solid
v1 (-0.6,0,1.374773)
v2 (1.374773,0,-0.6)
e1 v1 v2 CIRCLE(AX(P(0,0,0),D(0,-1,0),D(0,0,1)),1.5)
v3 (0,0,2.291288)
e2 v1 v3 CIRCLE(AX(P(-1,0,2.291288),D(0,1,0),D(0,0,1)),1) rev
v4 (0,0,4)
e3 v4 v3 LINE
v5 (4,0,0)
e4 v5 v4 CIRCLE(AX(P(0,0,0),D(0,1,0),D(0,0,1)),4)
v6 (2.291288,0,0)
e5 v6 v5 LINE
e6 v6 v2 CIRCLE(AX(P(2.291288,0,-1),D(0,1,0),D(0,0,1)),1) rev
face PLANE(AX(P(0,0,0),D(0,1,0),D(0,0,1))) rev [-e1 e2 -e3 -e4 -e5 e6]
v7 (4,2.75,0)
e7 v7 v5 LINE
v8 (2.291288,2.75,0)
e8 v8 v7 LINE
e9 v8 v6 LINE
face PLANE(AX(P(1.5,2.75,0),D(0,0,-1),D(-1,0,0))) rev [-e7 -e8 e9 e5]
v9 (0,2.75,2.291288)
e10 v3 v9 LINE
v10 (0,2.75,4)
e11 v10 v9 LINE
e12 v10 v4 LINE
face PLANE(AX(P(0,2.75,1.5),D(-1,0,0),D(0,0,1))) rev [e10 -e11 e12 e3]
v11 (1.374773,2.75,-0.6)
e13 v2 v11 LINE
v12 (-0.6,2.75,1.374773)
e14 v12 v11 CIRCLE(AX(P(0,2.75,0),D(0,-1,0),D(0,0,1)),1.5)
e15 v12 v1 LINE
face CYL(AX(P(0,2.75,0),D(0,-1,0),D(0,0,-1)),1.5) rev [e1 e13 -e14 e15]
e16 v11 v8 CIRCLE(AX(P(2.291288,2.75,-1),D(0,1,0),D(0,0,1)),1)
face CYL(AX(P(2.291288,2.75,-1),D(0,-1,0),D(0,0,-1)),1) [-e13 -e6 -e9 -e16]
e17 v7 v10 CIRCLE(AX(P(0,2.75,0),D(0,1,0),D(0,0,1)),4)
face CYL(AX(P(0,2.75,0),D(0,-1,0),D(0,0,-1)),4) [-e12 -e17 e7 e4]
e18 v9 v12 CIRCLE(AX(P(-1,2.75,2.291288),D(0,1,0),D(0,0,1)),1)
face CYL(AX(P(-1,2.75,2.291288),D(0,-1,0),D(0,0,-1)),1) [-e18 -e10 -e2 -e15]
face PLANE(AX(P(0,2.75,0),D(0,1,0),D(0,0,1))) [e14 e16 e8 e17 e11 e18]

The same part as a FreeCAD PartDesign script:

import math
import FreeCAD as App
import Part
import Sketcher
from FreeCAD import Vector


def edges_at(feature, points):
    """Names of the edges that pass closest to the given points."""
    edges = feature.Shape.Edges
    near = lambda p: min(range(len(edges)), key=lambda i: edges[i].distToShape(Part.Vertex(*p))[0])
    return sorted({f"Edge{near(p) + 1}" for p in points})

doc = App.newDocument("Part")
body = doc.addObject("PartDesign::Body", "Body")

# Sketch on XZ plane
sketch1 = doc.addObject("Sketcher::SketchObject", "Sketch")
body.addObject(sketch1)
sketch1.AttachmentSupport = (doc.XZ_Plane, [""])
sketch1.MapMode = "FlatFace"
sketch1.addGeometry([
    Part.LineSegment(Vector(1.5, 0, 0), Vector(4, 0, 0)),
    Part.ArcOfCircle(Part.Circle(Vector(0, 0, 0), Vector(0, 0, 1), 4), math.radians(90), math.radians(360)),
    Part.LineSegment(Vector(0, 4, 0), Vector(0, 1.5, 0)),
    Part.ArcOfCircle(Part.Circle(Vector(0, 0, 0), Vector(0, 0, 1), 1.5), math.radians(90), math.radians(360)),
], False)
sketch1.addConstraint([
    Sketcher.Constraint("Coincident", 0, 2, 1, 2),
    Sketcher.Constraint("Coincident", 1, 1, 2, 1),
    Sketcher.Constraint("Coincident", 2, 2, 3, 1),
    Sketcher.Constraint("Coincident", 3, 2, 0, 1),
    Sketcher.Constraint("Horizontal", 0),
    Sketcher.Constraint("Vertical", 2),
    Sketcher.Constraint("Coincident", 1, 3, -1, 1),
    Sketcher.Constraint("Coincident", 3, 3, -1, 1),
    Sketcher.Constraint("PointOnObject", 0, 2, -1),
    Sketcher.Constraint("PointOnObject", 1, 1, -2),
    Sketcher.Constraint("Radius", 1, 4.0),
    Sketcher.Constraint("Radius", 3, 1.5),
])
pad1 = doc.addObject("PartDesign::Pad", "Pad")
body.addObject(pad1)
pad1.Profile = sketch1
pad1.Length = 2.75
pad1.Reversed = True
doc.recompute()

fillet = doc.addObject("PartDesign::Fillet", "Fillet")
body.addObject(fillet)
fillet.Base = (pad1, edges_at(pad1, [(0, 1.375, 1.5), (1.5, 1.375, 0)]))
fillet.Radius = 1

doc.recompute()
